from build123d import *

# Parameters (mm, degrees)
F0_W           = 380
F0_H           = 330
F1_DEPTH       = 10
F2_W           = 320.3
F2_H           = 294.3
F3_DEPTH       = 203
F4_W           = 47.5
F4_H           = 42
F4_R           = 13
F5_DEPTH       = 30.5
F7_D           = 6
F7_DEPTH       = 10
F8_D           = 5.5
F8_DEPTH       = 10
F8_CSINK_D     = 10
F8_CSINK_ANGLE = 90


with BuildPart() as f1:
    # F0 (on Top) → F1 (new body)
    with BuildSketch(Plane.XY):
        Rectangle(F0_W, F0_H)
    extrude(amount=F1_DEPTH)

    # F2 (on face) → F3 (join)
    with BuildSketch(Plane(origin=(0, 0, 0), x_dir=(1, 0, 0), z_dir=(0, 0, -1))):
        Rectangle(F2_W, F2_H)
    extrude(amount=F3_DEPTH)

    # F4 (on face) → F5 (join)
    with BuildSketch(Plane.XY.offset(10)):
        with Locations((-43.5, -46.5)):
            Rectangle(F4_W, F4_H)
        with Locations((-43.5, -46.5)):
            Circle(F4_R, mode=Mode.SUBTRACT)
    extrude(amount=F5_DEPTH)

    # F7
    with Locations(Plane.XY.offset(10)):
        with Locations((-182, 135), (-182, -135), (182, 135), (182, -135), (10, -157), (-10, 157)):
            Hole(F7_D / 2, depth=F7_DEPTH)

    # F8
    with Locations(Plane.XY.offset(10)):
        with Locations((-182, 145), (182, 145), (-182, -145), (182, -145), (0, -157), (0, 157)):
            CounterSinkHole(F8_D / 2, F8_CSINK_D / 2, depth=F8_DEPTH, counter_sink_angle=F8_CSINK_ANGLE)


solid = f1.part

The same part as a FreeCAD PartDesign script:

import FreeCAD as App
import Part
import Sketcher
from FreeCAD import Vector
Q = App.Units.Quantity


def add_polygon(sketch, points):
    """Adds a closed chain of lines whose ends are joined by coincident constraints."""
    first, n = sketch.GeometryCount, len(points)
    for a, b in zip(points, points[1:] + points[:1]):
        sketch.addGeometry(Part.LineSegment(App.Vector(*a, 0), App.Vector(*b, 0)), False)
    for i in range(n):
        sketch.addConstraint(Sketcher.Constraint("Coincident", first + i, 2, first + (i + 1) % n, 1))

doc = App.newDocument("Part")
body = doc.addObject("PartDesign::Body", "Body")

sketch1 = doc.addObject("Sketcher::SketchObject", "Sketch")
body.addObject(sketch1)
sketch1.AttachmentSupport = (doc.XY_Plane, [""])
sketch1.MapMode = "FlatFace"
add_polygon(sketch1, [(-190, 165), (-190, -165), (190, -165), (190, 165)])
sketch1.addConstraint(Sketcher.Constraint("Vertical", 0))
sketch1.addConstraint(Sketcher.Constraint("Horizontal", 1))
sketch1.addConstraint(Sketcher.Constraint("Vertical", 2))
sketch1.addConstraint(Sketcher.Constraint("Horizontal", 3))
sketch1.addConstraint(Sketcher.Constraint("Symmetric", 0, 2, 2, 2, -1, 1))
sketch1.addConstraint(Sketcher.Constraint("DistanceX", 1, 1, 1, 2, Q("380 mm")))
sketch1.addConstraint(Sketcher.Constraint("DistanceY", 0, 2, 0, 1, Q("330 mm")))
pad1 = doc.addObject("PartDesign::Pad", "Pad")
body.addObject(pad1)
pad1.Profile = sketch1
pad1.Length = 10

sketch2 = doc.addObject("Sketcher::SketchObject", "Sketch001")
body.addObject(sketch2)
sketch2.AttachmentSupport = (doc.XY_Plane, [""])
sketch2.MapMode = "FlatFace"
add_polygon(sketch2, [(-160, -147), (-160, 147), (160, 147), (160, -147)])
sketch2.addConstraint(Sketcher.Constraint("Vertical", 0))
sketch2.addConstraint(Sketcher.Constraint("Horizontal", 1))
sketch2.addConstraint(Sketcher.Constraint("Vertical", 2))
sketch2.addConstraint(Sketcher.Constraint("Horizontal", 3))
sketch2.addConstraint(Sketcher.Constraint("Symmetric", 0, 2, 2, 2, -1, 1))
sketch2.addConstraint(Sketcher.Constraint("DistanceX", 1, 1, 1, 2, Q("320.3 mm")))
sketch2.addConstraint(Sketcher.Constraint("DistanceY", 0, 1, 0, 2, Q("294.3 mm")))
pad2 = doc.addObject("PartDesign::Pad", "Pad001")
body.addObject(pad2)
pad2.Profile = sketch2
pad2.Length = 203
pad2.Reversed = True

sketch3 = doc.addObject("Sketcher::SketchObject", "Sketch002")
body.addObject(sketch3)
sketch3.AttachmentSupport = (doc.XY_Plane, [""])
sketch3.MapMode = "FlatFace"
sketch3.AttachmentOffset = App.Placement(Vector(0, 0, 10), App.Rotation())
add_polygon(sketch3, [(-67, -26), (-67, -68), (-20, -68), (-20, -26)])
sketch3.addGeometry(Part.Circle(Vector(-44, -46, 0), Vector(0, 0, 1), 13), False)
sketch3.addConstraint(Sketcher.Constraint("Vertical", 0))
sketch3.addConstraint(Sketcher.Constraint("Horizontal", 1))
sketch3.addConstraint(Sketcher.Constraint("Vertical", 2))
sketch3.addConstraint(Sketcher.Constraint("Horizontal", 3))
sketch3.addConstraint(Sketcher.Constraint("Diameter", 4, Q("26 mm")))
sketch3.addConstraint(Sketcher.Constraint("DistanceY", 0, 2, 0, 1, Q("42 mm")))
sketch3.addConstraint(Sketcher.Constraint("DistanceX", 1, 1, 1, 2, Q("47.5 mm")))
sketch3.addConstraint(Sketcher.Constraint("DistanceY", 0, 2, 4, 3, Q("21 mm")))
sketch3.addConstraint(Sketcher.Constraint("DistanceX", 4, 3, -1, 1, Q("43.5 mm")))
sketch3.addConstraint(Sketcher.Constraint("DistanceY", 4, 3, -1, 1, Q("46.5 mm")))
sketch3.addConstraint(Sketcher.Constraint("DistanceX", 0, 2, -1, 1, Q("67.25 mm")))
pad3 = doc.addObject("PartDesign::Pad", "Pad002")
body.addObject(pad3)
pad3.Profile = sketch3
pad3.Length = 30.5

sketch4 = doc.addObject("Sketcher::SketchObject", "Sketch003")
body.addObject(sketch4)
sketch4.AttachmentSupport = (doc.XY_Plane, [""])
sketch4.MapMode = "FlatFace"
sketch4.AttachmentOffset = App.Placement(Vector(0, 0, 10), App.Rotation())
sketch4.addGeometry(Part.Circle(Vector(-182, 135, 0), Vector(0, 0, 1), 3), False)
sketch4.addGeometry(Part.Circle(Vector(-182, -135, 0), Vector(0, 0, 1), 3), False)
sketch4.addGeometry(Part.Circle(Vector(182, 135, 0), Vector(0, 0, 1), 3), False)
sketch4.addGeometry(Part.Circle(Vector(182, -135, 0), Vector(0, 0, 1), 3), False)
sketch4.addGeometry(Part.Circle(Vector(10, -157, 0), Vector(0, 0, 1), 3), False)
sketch4.addGeometry(Part.Circle(Vector(-10, 157, 0), Vector(0, 0, 1), 3), False)
sketch4.addConstraint(Sketcher.Constraint("Equal", 0, 1))
sketch4.addConstraint(Sketcher.Constraint("Equal", 1, 2))
sketch4.addConstraint(Sketcher.Constraint("Equal", 2, 3))
sketch4.addConstraint(Sketcher.Constraint("Equal", 3, 4))
sketch4.addConstraint(Sketcher.Constraint("Equal", 4, 5))
sketch4.addConstraint(Sketcher.Constraint("Symmetric", 1, 3, 2, 3, -1, 1))
sketch4.addConstraint(Sketcher.Constraint("Symmetric", 0, 3, 3, 3, -1, 1))
sketch4.addConstraint(Sketcher.Constraint("Symmetric", 4, 3, 5, 3, -1, 1))
sketch4.addConstraint(Sketcher.Constraint("Symmetric", 0, 3, 2, 3, -2))
sketch4.addConstraint(Sketcher.Constraint("Diameter", 0, Q("6 mm")))
sketch4.addConstraint(Sketcher.Constraint("DistanceX", 0, 3, -1, 1, Q("182 mm")))
sketch4.addConstraint(Sketcher.Constraint("DistanceY", -1, 1, 0, 3, Q("135 mm")))
sketch4.addConstraint(Sketcher.Constraint("DistanceX", -1, 1, 4, 3, Q("10 mm")))
sketch4.addConstraint(Sketcher.Constraint("DistanceY", 4, 3, -1, 1, Q("157 mm")))
doc.recompute()
hole = doc.addObject("PartDesign::Hole", "Hole")
body.addObject(hole)
hole.Profile = sketch4
hole.ThreadType = "None"
hole.Diameter = 6
hole.DepthType = "Dimension"
hole.Depth = 10
hole.DrillPoint = "Flat"

sketch5 = doc.addObject("Sketcher::SketchObject", "Sketch004")
body.addObject(sketch5)
sketch5.AttachmentSupport = (doc.XY_Plane, [""])
sketch5.MapMode = "FlatFace"
sketch5.AttachmentOffset = App.Placement(Vector(0, 0, 10), App.Rotation())
sketch5.addGeometry(Part.Circle(Vector(-182, 145, 0), Vector(0, 0, 1), 2.8), False)
sketch5.addGeometry(Part.Circle(Vector(182, 145, 0), Vector(0, 0, 1), 2.8), False)
sketch5.addGeometry(Part.Circle(Vector(-182, -145, 0), Vector(0, 0, 1), 2.8), False)
sketch5.addGeometry(Part.Circle(Vector(182, -145, 0), Vector(0, 0, 1), 2.8), False)
sketch5.addGeometry(Part.Circle(Vector(0, -157, 0), Vector(0, 0, 1), 2.8), False)
sketch5.addGeometry(Part.Circle(Vector(0, 157, 0), Vector(0, 0, 1), 2.8), False)
sketch5.addConstraint(Sketcher.Constraint("Equal", 0, 1))
sketch5.addConstraint(Sketcher.Constraint("Equal", 1, 2))
sketch5.addConstraint(Sketcher.Constraint("Equal", 2, 3))
sketch5.addConstraint(Sketcher.Constraint("Equal", 3, 4))
sketch5.addConstraint(Sketcher.Constraint("Equal", 4, 5))
sketch5.addConstraint(Sketcher.Constraint("Symmetric", 1, 3, 2, 3, -1, 1))
sketch5.addConstraint(Sketcher.Constraint("Symmetric", 0, 3, 3, 3, -1, 1))
sketch5.addConstraint(Sketcher.Constraint("Symmetric", 4, 3, 5, 3, -1, 1))
sketch5.addConstraint(Sketcher.Constraint("Symmetric", 0, 3, 1, 3, -2))
sketch5.addConstraint(Sketcher.Constraint("PointOnObject", 4, 3, -2))
sketch5.addConstraint(Sketcher.Constraint("Diameter", 0, Q("5.5 mm")))
sketch5.addConstraint(Sketcher.Constraint("DistanceX", 0, 3, -1, 1, Q("182 mm")))
sketch5.addConstraint(Sketcher.Constraint("DistanceY", -1, 1, 0, 3, Q("145 mm")))
sketch5.addConstraint(Sketcher.Constraint("DistanceY", 4, 3, -1, 1, Q("157 mm")))
doc.recompute()
hole2 = doc.addObject("PartDesign::Hole", "Hole001")
body.addObject(hole2)
hole2.Profile = sketch5
hole2.ThreadType = "None"
hole2.Diameter = 5.5
hole2.DepthType = "Dimension"
hole2.Depth = 10
hole2.DrillPoint = "Flat"
hole2.HoleCutType = "Countersink"
hole2.HoleCutDiameter = 10
hole2.HoleCutCountersinkAngle = 90

doc.recompute()
